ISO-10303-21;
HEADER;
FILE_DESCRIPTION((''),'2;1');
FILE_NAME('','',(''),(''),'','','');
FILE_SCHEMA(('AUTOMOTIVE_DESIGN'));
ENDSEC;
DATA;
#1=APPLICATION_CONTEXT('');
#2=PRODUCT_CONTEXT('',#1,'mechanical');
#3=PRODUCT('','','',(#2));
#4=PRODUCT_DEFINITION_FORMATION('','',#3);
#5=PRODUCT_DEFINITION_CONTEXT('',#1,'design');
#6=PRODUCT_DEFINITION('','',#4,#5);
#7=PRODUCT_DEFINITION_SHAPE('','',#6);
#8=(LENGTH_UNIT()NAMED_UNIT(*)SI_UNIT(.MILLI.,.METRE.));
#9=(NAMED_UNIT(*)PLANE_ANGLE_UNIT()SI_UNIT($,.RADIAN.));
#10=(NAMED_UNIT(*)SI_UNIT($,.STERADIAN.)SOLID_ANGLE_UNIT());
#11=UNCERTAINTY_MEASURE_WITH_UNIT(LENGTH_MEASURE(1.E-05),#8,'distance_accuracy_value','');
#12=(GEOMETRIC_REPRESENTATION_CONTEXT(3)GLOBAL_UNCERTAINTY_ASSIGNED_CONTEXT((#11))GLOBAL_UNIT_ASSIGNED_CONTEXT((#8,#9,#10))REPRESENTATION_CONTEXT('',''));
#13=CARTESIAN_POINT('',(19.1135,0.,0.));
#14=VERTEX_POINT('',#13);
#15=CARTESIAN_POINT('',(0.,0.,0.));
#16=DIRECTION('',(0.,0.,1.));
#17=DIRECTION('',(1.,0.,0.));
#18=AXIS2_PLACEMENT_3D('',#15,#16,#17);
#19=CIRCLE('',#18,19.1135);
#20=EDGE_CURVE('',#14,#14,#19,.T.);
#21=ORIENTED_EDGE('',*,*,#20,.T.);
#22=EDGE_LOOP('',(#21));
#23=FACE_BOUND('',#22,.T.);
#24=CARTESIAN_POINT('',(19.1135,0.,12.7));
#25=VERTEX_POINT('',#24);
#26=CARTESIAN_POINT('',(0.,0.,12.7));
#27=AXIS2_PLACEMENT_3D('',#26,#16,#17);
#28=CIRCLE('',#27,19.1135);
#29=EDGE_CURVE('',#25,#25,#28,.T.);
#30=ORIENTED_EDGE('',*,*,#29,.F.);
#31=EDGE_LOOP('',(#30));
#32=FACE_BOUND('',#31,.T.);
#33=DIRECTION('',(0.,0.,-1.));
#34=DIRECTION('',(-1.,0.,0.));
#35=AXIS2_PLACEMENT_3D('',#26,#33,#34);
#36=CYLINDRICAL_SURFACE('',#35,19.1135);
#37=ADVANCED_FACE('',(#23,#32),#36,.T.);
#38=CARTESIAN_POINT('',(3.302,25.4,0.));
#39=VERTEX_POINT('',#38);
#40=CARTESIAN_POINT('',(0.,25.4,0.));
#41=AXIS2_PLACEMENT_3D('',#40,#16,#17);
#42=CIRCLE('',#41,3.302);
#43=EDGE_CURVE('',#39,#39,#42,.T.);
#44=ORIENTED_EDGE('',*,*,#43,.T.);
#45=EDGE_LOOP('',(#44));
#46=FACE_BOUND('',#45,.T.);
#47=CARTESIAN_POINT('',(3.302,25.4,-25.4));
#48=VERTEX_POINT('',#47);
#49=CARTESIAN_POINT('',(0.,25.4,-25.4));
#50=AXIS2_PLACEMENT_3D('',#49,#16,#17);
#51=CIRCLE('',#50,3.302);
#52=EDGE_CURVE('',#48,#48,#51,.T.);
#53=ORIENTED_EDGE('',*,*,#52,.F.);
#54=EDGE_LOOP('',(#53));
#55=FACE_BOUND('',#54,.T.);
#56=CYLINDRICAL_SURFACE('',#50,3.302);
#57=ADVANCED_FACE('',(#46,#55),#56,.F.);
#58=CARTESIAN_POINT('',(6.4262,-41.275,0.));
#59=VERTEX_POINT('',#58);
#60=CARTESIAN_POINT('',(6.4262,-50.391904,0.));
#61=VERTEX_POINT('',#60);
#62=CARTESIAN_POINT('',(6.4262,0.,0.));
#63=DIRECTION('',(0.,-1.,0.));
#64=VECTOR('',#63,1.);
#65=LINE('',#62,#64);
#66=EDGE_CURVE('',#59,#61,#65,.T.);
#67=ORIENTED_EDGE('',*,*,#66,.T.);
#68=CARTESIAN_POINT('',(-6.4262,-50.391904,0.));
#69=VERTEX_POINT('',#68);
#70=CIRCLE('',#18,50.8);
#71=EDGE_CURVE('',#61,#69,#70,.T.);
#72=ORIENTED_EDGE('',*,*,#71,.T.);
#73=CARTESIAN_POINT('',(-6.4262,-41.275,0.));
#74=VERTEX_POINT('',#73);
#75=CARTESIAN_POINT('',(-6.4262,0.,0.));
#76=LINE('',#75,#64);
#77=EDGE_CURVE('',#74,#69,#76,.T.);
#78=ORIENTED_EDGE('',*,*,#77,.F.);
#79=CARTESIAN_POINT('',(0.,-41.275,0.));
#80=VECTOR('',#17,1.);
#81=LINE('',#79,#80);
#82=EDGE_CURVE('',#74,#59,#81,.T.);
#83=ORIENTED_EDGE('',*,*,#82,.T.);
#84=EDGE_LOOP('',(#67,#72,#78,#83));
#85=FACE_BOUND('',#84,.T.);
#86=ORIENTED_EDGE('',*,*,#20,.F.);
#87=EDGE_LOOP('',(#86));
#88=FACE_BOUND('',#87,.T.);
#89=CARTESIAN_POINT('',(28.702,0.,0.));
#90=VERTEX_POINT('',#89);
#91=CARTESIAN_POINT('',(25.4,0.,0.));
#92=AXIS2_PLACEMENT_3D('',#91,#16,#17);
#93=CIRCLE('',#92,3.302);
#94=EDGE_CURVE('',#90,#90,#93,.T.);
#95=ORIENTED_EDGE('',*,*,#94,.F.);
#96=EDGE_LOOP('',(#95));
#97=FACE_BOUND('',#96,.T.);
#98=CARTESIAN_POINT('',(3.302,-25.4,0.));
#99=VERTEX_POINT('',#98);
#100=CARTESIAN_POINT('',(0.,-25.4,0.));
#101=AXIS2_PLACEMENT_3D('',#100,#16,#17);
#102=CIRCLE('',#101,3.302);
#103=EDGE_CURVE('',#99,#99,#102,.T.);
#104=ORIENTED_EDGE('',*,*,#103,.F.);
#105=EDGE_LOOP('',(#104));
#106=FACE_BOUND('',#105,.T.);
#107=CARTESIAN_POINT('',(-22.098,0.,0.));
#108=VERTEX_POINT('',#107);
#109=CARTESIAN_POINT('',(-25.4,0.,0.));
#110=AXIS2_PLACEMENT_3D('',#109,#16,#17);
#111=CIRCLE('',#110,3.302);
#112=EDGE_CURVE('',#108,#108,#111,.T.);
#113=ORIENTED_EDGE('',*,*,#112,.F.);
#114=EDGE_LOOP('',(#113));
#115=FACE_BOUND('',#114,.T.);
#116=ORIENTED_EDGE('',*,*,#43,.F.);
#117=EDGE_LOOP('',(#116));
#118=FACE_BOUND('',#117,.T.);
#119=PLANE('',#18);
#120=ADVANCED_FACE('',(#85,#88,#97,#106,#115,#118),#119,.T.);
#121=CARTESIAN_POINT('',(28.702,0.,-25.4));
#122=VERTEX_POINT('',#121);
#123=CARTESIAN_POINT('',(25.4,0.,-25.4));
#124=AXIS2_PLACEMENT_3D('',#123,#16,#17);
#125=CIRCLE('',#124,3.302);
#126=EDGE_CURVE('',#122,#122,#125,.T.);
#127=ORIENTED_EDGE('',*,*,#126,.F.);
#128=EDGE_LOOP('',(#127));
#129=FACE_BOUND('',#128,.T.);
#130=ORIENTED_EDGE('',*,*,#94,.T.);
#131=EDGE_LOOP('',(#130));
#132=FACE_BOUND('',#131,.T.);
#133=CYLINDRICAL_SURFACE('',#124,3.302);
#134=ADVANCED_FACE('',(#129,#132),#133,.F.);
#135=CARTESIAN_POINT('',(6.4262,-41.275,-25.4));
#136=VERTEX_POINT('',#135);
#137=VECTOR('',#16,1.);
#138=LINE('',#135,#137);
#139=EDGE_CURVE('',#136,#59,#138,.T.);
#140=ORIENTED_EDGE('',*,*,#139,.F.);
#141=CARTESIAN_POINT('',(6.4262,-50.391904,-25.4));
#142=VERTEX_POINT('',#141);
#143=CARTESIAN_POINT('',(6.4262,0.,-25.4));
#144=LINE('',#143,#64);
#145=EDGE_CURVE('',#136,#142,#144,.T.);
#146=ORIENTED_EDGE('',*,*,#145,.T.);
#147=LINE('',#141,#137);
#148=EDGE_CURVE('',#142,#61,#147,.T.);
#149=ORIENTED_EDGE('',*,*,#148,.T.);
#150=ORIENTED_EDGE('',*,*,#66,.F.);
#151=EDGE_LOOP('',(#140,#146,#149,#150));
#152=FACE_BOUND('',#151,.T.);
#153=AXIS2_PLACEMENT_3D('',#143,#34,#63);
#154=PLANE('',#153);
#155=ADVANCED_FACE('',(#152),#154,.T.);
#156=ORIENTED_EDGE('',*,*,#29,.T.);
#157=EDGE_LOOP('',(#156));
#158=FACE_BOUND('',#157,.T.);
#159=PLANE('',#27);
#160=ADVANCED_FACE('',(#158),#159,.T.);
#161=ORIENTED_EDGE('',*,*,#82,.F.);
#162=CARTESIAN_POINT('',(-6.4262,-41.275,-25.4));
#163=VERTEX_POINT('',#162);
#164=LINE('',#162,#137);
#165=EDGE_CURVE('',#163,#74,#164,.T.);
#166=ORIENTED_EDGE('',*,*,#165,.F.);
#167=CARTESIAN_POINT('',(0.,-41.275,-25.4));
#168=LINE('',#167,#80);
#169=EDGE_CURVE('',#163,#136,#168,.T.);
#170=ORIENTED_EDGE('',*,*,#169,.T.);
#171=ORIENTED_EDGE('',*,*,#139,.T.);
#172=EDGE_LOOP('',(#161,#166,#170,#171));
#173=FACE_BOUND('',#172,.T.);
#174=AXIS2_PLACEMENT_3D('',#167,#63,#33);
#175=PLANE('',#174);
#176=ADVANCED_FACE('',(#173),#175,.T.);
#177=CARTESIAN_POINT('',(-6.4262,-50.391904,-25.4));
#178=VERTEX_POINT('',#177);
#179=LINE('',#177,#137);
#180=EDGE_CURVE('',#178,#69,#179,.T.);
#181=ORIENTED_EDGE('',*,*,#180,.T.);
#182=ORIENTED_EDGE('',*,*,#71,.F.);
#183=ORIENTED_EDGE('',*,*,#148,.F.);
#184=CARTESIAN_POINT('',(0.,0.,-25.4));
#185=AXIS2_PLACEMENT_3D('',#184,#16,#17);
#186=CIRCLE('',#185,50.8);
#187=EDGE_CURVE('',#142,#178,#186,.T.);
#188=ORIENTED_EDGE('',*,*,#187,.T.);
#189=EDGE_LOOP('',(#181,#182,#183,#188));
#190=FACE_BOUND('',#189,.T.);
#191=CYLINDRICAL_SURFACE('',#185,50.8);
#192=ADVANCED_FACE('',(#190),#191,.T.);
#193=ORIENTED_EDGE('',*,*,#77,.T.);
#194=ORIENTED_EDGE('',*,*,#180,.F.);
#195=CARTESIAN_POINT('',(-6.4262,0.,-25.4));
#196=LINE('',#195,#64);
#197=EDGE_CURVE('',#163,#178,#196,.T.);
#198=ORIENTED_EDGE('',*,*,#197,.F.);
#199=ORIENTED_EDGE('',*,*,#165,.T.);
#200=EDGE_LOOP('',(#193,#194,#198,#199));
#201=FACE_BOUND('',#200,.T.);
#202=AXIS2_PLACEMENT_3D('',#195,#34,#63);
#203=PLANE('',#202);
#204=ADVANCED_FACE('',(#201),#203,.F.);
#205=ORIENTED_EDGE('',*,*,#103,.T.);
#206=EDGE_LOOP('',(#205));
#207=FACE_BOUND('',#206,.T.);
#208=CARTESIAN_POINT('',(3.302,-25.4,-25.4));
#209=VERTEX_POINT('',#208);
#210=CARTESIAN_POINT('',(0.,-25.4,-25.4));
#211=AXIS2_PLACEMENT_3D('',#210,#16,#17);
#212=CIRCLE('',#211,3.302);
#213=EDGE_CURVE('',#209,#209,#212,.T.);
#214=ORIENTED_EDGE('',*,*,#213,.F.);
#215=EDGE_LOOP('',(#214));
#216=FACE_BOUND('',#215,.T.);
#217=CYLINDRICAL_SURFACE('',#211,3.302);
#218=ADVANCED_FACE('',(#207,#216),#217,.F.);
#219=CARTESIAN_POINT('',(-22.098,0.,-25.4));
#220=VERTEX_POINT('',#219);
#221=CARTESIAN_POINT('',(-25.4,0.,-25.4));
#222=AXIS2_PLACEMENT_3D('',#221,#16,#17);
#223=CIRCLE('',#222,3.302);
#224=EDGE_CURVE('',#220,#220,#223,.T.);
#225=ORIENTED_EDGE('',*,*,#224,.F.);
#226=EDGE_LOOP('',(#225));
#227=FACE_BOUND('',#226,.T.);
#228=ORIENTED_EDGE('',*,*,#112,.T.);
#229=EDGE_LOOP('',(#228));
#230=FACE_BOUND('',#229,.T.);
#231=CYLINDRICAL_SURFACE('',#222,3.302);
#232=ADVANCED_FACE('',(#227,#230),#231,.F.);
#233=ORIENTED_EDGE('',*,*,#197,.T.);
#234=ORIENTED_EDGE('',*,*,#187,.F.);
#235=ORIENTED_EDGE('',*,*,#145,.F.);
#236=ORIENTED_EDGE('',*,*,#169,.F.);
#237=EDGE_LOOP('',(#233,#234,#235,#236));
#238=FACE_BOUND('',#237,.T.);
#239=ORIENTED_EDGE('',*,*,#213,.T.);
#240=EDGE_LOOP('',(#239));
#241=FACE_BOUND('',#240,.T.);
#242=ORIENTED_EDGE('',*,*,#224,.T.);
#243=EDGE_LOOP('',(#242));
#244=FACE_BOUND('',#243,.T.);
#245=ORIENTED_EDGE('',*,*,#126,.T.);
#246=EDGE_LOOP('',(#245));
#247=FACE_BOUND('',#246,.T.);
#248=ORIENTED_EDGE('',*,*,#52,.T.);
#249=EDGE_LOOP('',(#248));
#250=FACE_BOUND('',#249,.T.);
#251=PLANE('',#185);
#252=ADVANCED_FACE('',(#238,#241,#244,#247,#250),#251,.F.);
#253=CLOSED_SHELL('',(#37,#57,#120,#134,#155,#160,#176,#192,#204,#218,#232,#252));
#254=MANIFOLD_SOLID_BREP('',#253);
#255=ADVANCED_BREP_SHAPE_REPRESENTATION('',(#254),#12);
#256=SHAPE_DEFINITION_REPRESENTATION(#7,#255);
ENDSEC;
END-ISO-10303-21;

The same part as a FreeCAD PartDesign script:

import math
import FreeCAD as App
import Part
import Sketcher
from FreeCAD import Vector
Q = App.Units.Quantity

doc = App.newDocument("Part")
body = doc.addObject("PartDesign::Body", "Body")

sketch1 = body.newObject("Sketcher::SketchObject", "Sketch")
sketch1.AttachmentSupport = (doc.getObject("XY_Plane"), [""])
sketch1.MapMode = "FlatFace"
sketch1.addGeometry([
    Part.LineSegment(Vector(6.4, -41.3, 0), Vector(6.4, -50.4, 0)),
    Part.ArcOfCircle(Part.Circle(Vector(0, 0, 0), Vector(0, 0, 1), 50.8), math.radians(-83), math.radians(263)),
    Part.LineSegment(Vector(-6.4, -50.4, 0), Vector(-6.4, -41.3, 0)),
    Part.LineSegment(Vector(-6.4, -41.3, 0), Vector(6.4, -41.3, 0)),
    Part.Circle(Vector(0, -25.4, 0), Vector(0, 0, 1), 3.3),
    Part.Circle(Vector(-25.4, 0, 0), Vector(0, 0, 1), 3.3),
    Part.Circle(Vector(25.4, 0, 0), Vector(0, 0, 1), 3.3),
    Part.Circle(Vector(0, 25.4, 0), Vector(0, 0, 1), 3.3),
], False)
sketch1.addConstraint([
    Sketcher.Constraint("Coincident", 0, 2, 1, 1),
    Sketcher.Constraint("Coincident", 1, 2, 2, 1),
    Sketcher.Constraint("Coincident", 2, 2, 3, 1),
    Sketcher.Constraint("Coincident", 3, 2, 0, 1),
    Sketcher.Constraint("Vertical", 0),
    Sketcher.Constraint("Vertical", 2),
    Sketcher.Constraint("Horizontal", 3),
    Sketcher.Constraint("Coincident", 1, 3, -1, 1),
    Sketcher.Constraint("Equal", 4, 5),
    Sketcher.Constraint("Equal", 5, 6),
    Sketcher.Constraint("Equal", 6, 7),
    Sketcher.Constraint("Symmetric", 5, 3, 6, 3, -1, 1),
    Sketcher.Constraint("Symmetric", 4, 3, 7, 3, -1, 1),
    Sketcher.Constraint("PointOnObject", 4, 3, -2),
    Sketcher.Constraint("PointOnObject", 5, 3, -1),
    Sketcher.Constraint("Horizontal", 0, 2, 1, 2),
    Sketcher.Constraint("Radius", 1, Q("2 in")),
    Sketcher.Constraint("Diameter", 4, Q("0.26 in")),
    Sketcher.Constraint("DistanceY", 4, 3, -1, 1, Q("1 in")),
    Sketcher.Constraint("DistanceX", 5, 3, -1, 1, Q("1 in")),
    Sketcher.Constraint("DistanceX", 3, 1, 3, 2, Q("0.506 in")),
    Sketcher.Constraint("DistanceY", 2, 2, -1, 1, Q("1.625 in")),
])
pad1 = body.newObject("PartDesign::Pad", "Pad")
pad1.Profile = sketch1
pad1.Length = Q("1 in")
pad1.Reversed = True

sketch2 = body.newObject("Sketcher::SketchObject", "Sketch001")
sketch2.AttachmentSupport = (doc.getObject("XY_Plane"), [""])
sketch2.MapMode = "FlatFace"
sketch2.addGeometry(Part.Circle(Vector(0, 0, 0), Vector(0, 0, 1), 19), False)
sketch2.addConstraint([
    Sketcher.Constraint("Coincident", 0, 3, -1, 1),
    Sketcher.Constraint("Diameter", 0, Q("1.505 in")),
])
pad2 = body.newObject("PartDesign::Pad", "Pad001")
pad2.Profile = sketch2
pad2.Length = Q("0.5 in")

doc.recompute()
